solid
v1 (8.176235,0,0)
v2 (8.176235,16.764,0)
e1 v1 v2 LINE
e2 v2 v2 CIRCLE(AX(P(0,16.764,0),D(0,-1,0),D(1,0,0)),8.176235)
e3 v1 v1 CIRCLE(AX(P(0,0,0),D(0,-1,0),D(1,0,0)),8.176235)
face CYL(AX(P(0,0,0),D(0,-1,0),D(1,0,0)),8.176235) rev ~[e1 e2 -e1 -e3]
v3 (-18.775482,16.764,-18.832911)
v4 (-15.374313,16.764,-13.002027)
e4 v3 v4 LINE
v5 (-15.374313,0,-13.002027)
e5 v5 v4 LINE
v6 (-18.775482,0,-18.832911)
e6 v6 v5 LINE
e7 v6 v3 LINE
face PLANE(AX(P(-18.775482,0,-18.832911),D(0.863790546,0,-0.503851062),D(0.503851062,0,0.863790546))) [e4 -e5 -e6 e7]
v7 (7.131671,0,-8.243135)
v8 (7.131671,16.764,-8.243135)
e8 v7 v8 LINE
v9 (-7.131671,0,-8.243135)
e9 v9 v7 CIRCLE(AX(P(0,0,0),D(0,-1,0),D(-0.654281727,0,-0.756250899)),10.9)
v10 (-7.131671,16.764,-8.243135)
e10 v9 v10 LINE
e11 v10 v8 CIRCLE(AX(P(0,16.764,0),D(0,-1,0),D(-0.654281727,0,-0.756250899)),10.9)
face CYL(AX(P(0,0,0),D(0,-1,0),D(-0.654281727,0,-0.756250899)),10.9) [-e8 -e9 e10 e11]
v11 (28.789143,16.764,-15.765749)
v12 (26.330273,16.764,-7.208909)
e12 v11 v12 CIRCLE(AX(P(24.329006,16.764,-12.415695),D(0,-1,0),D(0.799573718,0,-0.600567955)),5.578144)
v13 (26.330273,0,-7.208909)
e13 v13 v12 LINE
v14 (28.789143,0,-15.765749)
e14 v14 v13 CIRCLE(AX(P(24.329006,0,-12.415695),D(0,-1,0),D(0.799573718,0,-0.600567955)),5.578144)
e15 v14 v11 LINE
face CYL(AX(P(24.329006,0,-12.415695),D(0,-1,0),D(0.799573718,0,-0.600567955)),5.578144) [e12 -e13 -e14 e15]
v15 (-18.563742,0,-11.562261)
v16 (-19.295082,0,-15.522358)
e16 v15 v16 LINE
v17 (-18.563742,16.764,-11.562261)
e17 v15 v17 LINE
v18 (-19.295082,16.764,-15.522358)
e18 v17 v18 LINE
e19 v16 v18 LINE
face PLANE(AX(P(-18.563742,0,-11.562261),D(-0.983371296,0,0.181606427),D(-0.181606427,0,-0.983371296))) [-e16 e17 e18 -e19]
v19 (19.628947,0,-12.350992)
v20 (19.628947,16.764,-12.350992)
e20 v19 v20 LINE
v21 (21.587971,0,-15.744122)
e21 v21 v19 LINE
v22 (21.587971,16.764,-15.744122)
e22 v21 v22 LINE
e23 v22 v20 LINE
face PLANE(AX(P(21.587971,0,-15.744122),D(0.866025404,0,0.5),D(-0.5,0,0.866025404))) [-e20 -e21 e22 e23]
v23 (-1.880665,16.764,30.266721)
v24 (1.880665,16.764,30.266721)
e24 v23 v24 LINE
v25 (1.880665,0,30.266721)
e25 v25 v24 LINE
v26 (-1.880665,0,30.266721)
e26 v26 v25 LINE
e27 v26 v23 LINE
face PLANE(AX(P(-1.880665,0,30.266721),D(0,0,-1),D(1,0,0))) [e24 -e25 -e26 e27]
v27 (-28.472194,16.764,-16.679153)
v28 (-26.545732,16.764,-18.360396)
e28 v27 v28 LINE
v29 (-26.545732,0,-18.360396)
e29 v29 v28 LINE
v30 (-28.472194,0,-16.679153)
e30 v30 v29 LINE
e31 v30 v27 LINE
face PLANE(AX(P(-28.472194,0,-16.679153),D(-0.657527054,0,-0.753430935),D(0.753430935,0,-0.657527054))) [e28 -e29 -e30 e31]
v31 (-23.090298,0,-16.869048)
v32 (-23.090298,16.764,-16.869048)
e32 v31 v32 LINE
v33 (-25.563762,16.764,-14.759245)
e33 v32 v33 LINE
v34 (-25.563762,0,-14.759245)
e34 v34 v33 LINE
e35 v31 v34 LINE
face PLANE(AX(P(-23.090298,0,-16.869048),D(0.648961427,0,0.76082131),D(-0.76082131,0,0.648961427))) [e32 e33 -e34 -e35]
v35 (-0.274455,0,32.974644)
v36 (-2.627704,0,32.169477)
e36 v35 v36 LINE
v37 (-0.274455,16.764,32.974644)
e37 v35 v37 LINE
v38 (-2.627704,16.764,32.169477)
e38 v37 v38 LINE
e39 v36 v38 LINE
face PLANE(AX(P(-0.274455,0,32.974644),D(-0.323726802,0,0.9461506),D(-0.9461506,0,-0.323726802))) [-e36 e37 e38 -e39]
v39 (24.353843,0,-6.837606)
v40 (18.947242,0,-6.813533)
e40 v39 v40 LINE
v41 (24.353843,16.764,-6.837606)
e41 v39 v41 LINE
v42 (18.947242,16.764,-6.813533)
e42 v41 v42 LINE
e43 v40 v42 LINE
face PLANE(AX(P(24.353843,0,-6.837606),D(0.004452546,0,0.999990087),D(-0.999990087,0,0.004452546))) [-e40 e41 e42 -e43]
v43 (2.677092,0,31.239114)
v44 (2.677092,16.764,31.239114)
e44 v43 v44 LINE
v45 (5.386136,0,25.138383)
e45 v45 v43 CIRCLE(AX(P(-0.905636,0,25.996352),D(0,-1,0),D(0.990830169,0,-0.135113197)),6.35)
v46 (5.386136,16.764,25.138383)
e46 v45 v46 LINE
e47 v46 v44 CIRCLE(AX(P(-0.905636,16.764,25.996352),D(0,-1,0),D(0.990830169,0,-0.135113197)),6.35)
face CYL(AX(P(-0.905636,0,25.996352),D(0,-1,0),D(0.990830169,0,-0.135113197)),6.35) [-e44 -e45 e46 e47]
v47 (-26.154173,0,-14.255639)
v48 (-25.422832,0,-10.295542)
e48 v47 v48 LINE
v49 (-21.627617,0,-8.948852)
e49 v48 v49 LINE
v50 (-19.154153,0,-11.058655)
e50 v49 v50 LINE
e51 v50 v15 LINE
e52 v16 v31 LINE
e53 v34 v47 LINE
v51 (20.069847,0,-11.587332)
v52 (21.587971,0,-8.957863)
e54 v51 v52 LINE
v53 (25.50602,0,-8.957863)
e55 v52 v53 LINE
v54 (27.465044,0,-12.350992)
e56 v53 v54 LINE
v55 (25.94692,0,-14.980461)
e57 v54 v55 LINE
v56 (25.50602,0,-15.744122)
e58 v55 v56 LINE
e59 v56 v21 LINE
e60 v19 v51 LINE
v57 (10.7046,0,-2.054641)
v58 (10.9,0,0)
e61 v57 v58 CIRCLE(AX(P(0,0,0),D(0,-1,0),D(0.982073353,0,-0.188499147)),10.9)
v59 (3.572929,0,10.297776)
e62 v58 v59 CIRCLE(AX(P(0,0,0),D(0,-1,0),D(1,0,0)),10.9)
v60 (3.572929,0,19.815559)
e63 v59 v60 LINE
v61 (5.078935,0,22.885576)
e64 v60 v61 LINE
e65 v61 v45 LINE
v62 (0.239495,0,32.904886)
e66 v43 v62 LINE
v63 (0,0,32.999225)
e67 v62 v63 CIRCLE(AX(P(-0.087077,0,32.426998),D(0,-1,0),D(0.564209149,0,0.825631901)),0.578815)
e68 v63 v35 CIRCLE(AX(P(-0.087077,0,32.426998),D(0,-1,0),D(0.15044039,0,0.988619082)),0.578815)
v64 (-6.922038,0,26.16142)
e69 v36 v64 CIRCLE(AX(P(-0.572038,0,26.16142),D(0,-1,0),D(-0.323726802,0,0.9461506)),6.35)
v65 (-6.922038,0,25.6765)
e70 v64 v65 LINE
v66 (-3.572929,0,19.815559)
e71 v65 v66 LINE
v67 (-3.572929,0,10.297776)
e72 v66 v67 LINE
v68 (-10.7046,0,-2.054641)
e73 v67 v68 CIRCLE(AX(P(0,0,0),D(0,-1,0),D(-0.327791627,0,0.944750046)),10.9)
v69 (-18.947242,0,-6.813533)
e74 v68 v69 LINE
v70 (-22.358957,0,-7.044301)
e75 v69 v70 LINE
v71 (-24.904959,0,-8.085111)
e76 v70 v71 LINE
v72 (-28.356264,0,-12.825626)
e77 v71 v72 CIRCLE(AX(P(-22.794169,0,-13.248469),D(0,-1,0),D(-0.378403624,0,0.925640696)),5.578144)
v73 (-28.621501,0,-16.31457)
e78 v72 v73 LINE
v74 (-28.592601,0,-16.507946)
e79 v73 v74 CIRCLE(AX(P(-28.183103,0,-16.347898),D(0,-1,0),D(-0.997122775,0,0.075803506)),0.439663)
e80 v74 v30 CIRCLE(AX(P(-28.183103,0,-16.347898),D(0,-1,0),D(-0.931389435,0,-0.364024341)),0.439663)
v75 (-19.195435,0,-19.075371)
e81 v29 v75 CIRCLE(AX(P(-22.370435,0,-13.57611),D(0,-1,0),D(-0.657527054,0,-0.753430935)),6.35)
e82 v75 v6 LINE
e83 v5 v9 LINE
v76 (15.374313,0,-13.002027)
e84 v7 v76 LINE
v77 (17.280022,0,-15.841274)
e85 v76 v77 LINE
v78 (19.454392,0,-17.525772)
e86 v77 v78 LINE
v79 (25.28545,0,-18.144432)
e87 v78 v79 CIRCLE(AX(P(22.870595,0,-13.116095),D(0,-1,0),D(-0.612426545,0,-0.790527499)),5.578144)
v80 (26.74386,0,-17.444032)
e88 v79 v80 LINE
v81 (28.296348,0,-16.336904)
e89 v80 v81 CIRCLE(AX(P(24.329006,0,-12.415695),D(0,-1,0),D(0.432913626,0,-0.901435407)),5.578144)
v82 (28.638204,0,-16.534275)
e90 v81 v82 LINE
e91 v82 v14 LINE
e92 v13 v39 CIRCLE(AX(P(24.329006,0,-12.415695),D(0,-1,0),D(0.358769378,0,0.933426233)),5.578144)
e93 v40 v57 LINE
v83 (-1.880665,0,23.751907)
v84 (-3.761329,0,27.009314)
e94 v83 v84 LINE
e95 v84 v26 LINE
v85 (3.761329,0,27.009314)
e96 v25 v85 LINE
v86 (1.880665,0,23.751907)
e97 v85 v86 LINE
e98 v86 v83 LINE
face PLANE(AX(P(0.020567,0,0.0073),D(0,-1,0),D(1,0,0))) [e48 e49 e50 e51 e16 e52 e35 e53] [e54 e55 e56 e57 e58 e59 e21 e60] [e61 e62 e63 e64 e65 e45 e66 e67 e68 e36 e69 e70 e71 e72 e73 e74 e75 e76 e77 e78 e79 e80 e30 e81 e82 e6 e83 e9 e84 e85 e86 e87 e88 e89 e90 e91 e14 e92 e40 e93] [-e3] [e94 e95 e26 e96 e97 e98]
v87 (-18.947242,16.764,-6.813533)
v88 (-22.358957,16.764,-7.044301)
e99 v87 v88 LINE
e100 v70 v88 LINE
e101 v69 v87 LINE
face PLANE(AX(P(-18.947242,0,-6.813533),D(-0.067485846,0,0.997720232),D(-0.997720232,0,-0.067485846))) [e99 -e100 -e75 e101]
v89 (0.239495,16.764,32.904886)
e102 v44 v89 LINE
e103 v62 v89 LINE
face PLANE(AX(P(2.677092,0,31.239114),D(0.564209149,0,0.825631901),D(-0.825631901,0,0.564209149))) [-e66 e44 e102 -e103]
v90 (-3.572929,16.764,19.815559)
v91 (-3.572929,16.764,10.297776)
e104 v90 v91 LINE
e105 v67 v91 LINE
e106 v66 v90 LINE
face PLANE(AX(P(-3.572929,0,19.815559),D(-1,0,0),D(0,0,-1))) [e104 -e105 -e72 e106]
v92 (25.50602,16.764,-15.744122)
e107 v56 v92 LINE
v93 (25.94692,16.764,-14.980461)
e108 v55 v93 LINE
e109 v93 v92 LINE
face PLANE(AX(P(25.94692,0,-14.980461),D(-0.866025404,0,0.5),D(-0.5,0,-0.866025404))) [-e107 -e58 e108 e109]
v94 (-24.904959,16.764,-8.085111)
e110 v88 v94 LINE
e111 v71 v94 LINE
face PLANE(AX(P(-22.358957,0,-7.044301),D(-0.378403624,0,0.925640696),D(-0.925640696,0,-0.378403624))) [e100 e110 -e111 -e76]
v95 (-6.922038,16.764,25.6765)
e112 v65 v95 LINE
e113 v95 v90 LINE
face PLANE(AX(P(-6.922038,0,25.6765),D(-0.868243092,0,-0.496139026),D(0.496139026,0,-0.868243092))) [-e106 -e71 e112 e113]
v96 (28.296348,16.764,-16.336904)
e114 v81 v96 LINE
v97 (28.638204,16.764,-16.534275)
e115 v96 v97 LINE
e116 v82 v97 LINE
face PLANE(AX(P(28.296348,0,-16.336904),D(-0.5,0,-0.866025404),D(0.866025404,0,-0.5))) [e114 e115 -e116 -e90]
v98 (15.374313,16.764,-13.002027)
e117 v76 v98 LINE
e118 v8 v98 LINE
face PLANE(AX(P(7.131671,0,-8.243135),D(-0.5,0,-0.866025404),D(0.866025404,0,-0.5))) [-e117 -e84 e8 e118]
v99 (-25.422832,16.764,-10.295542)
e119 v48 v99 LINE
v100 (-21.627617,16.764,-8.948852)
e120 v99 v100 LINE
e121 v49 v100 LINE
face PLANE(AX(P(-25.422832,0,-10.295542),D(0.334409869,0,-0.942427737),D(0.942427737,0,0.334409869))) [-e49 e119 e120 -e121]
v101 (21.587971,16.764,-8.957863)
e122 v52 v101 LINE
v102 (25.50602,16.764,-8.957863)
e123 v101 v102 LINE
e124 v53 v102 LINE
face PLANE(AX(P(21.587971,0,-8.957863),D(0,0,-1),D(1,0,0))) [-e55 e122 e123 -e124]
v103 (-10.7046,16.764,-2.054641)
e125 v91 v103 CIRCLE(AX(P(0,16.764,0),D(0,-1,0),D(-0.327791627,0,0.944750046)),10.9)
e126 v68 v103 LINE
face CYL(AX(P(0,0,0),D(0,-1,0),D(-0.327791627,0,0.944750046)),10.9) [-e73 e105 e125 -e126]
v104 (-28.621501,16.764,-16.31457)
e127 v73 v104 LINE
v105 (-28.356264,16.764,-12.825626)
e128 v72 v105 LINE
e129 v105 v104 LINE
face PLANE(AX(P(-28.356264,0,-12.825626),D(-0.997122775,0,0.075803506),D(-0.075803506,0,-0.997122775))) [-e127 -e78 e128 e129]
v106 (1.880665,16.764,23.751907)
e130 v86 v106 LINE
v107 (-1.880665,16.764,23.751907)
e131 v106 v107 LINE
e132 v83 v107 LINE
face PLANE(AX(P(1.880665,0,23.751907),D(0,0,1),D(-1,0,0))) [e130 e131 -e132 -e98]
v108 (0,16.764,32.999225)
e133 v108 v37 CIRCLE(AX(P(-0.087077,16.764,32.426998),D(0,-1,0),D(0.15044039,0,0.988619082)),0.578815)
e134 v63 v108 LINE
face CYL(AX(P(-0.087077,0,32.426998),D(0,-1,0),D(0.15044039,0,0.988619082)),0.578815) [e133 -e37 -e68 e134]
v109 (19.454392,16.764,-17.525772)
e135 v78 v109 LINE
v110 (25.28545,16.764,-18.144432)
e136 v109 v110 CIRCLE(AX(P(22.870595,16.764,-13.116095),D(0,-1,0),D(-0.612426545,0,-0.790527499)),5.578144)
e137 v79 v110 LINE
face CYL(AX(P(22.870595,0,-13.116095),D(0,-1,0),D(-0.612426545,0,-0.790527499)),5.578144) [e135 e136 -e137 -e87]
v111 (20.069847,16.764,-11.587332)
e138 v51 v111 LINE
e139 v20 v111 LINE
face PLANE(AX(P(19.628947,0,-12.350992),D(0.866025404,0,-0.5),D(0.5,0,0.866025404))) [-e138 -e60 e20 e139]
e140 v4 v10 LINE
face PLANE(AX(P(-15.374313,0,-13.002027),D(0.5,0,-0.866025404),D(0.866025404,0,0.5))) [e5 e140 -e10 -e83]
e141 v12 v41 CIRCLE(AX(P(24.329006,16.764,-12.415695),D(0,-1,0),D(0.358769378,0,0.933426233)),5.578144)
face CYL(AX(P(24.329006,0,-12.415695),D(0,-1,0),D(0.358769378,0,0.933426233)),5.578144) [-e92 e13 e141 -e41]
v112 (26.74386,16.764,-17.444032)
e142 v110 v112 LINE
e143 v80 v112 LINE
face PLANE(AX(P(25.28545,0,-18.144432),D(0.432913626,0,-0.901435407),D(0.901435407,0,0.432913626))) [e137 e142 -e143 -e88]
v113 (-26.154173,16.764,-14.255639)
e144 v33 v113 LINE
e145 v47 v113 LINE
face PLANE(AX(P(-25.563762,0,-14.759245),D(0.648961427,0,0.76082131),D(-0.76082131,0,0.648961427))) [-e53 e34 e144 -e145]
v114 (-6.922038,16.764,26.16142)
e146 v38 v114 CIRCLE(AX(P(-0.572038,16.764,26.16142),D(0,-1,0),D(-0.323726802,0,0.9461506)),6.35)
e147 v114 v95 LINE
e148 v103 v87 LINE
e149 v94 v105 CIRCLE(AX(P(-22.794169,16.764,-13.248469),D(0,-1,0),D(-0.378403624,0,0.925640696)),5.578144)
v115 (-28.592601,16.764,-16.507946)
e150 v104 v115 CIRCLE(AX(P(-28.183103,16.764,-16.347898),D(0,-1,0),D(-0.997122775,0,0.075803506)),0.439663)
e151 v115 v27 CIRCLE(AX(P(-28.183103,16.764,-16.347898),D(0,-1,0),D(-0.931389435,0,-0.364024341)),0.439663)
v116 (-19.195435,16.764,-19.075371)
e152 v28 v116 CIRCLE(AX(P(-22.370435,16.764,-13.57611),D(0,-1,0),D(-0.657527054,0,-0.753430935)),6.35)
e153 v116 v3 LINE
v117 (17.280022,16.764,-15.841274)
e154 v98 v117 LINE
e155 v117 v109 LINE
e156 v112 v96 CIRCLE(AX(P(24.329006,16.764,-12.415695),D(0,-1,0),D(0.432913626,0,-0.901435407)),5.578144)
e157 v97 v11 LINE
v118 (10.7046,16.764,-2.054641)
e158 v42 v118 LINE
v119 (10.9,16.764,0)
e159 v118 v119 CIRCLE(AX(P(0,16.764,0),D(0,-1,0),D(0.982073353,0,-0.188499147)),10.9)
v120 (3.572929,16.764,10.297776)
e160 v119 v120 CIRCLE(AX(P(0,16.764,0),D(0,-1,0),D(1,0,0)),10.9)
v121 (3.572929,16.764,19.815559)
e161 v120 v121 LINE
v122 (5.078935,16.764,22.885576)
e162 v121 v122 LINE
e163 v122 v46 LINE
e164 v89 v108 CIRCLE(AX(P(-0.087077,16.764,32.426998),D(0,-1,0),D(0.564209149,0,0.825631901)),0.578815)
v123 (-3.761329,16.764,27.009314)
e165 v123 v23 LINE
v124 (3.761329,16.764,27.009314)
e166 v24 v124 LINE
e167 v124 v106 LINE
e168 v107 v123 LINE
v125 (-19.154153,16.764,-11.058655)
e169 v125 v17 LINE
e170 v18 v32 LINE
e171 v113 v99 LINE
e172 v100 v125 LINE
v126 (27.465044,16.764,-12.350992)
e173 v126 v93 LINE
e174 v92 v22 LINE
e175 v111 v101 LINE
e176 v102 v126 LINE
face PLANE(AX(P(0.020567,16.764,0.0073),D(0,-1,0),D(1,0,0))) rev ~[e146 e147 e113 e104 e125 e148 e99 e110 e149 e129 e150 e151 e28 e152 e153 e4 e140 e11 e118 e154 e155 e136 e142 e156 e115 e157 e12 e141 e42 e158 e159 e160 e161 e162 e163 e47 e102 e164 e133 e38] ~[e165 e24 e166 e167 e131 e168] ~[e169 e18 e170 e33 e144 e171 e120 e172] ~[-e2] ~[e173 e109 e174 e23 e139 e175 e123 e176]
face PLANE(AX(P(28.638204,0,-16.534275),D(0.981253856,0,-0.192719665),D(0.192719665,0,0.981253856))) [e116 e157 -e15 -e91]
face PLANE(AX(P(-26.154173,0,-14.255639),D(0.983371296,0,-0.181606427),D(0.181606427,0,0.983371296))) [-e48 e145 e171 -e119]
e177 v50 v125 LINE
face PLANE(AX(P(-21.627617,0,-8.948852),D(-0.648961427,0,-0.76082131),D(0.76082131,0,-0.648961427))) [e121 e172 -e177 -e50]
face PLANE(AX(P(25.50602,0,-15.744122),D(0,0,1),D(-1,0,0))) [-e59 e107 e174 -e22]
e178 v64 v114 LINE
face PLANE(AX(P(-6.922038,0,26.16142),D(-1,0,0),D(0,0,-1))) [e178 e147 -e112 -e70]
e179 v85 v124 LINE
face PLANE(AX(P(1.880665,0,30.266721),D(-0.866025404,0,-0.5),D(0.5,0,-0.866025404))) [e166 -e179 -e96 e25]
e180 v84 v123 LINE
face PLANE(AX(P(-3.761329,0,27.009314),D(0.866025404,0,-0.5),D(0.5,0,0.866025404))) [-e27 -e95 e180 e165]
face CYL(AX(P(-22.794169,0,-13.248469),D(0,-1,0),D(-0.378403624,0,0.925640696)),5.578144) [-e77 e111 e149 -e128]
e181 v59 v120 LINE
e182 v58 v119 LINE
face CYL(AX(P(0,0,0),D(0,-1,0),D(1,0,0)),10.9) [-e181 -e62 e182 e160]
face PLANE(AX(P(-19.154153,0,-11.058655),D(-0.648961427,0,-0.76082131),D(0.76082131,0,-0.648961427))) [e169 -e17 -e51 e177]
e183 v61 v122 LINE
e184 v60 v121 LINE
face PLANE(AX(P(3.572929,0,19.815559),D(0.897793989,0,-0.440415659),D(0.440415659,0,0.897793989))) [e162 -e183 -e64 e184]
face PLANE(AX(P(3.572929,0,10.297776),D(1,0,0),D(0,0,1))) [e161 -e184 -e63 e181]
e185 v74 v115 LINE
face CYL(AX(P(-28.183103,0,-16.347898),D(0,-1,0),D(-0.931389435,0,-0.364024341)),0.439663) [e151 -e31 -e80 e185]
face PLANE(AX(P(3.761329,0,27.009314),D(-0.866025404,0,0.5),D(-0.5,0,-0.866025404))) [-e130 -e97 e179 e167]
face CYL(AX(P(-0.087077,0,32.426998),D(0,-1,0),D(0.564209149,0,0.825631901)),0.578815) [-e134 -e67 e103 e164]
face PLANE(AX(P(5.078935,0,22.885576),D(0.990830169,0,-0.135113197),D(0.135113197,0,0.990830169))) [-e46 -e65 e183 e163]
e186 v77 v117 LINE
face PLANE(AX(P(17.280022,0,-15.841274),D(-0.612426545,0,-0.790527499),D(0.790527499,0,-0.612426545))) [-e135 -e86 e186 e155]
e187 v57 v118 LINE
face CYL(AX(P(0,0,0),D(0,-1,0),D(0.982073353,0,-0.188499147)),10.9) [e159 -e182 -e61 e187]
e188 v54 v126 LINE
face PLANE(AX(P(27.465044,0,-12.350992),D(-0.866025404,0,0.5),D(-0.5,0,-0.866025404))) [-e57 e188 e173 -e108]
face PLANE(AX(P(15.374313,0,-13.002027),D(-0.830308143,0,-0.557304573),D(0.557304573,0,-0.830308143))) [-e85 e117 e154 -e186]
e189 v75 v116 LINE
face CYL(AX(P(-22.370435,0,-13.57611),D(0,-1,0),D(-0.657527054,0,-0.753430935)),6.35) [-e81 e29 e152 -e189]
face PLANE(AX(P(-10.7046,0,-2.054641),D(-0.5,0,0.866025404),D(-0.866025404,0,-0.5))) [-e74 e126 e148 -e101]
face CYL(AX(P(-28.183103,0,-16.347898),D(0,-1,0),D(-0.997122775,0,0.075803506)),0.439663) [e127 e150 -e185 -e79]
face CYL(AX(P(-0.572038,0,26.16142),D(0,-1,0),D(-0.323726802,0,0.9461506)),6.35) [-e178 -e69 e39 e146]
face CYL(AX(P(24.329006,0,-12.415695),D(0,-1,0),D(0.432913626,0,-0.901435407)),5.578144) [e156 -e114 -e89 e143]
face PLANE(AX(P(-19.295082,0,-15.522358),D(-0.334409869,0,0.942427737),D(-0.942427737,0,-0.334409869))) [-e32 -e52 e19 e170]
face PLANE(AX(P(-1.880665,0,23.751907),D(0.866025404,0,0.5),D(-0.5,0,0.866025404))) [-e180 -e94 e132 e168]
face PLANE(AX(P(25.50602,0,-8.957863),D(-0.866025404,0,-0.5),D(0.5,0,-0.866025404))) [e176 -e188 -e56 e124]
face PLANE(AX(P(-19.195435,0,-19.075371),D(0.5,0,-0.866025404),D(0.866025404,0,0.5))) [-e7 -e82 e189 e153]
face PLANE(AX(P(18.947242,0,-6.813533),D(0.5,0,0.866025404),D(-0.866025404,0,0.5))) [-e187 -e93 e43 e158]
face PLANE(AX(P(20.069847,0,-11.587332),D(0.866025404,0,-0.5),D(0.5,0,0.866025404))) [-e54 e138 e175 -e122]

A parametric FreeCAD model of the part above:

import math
import FreeCAD as App
import Part
import Sketcher

V = App.Vector
Q = App.Units.Quantity

doc = App.newDocument("Part")
params = doc.addObject("Spreadsheet::Sheet", "Params")
for row, (alias, value) in enumerate([
    ("sketch1_radius", "0.25 in"),
    ("sketch1_radius2", "0.25 in"),
    ("sketch1_radius3", "0.25 in"),
    ("pad1_length", "0.66 in"),
], start=1):
    params.set(f"A{row}", alias)
    params.set(f"B{row}", "=" + value)
    params.setAlias(f"B{row}", alias)

body = doc.addObject("PartDesign::Body", "Body")

sketch1 = body.newObject("Sketcher::SketchObject", "Sketch")
sketch1.AttachmentSupport = (doc.getObject("XZ_Plane"), [""])
sketch1.MapMode = "FlatFace"
sketch1.addGeometry(Part.ArcOfCircle(Part.Circle(V(0, 0, 0), V(0, 0, 1), 10.9), math.radians(-10.865209), math.radians(0)), False)
sketch1.addGeometry(Part.ArcOfCircle(Part.Circle(V(0, 0, 0), V(0, 0, 1), 10.9), math.radians(0), math.radians(70.865209)), False)
sketch1.addGeometry(Part.LineSegment(V(3.572929, 10.297776, 0), V(3.572929, 19.815559, 0)), False)
sketch1.addGeometry(Part.LineSegment(V(3.572929, 19.815559, 0), V(5.078935, 22.885576, 0)), False)
sketch1.addGeometry(Part.LineSegment(V(5.078935, 22.885576, 0), V(5.386136, 25.138383, 0)), False)
sketch1.addGeometry(Part.ArcOfCircle(Part.Circle(V(-0.905636, 25.996352, 0), V(0, 0, 1), 6.35), math.radians(-7.765166), math.radians(55.652609)), False)
sketch1.addGeometry(Part.LineSegment(V(2.677092, 31.239114, 0), V(0.239495, 32.904886, 0)), False)
sketch1.addGeometry(Part.ArcOfCircle(Part.Circle(V(-0.087077, 32.426998, 0), V(0, 0, 1), 0.578815), math.radians(55.652609), math.radians(81.347551)), False)
sketch1.addGeometry(Part.ArcOfCircle(Part.Circle(V(-0.087077, 32.426998, 0), V(0, 0, 1), 0.578815), math.radians(81.347551), math.radians(108.888457)), False)
sketch1.addGeometry(Part.LineSegment(V(-0.274455, 32.974644, 0), V(-2.627704, 32.169477, 0)), False)
sketch1.addGeometry(Part.ArcOfCircle(Part.Circle(V(-0.572038, 26.16142, 0), V(0, 0, 1), 6.35), math.radians(108.888457), math.radians(180)), False)
sketch1.addGeometry(Part.LineSegment(V(-6.922038, 26.16142, 0), V(-6.922038, 25.6765, 0)), False)
sketch1.addGeometry(Part.LineSegment(V(-6.922038, 25.6765, 0), V(-3.572929, 19.815559, 0)), False)
sketch1.addGeometry(Part.LineSegment(V(-3.572929, 19.815559, 0), V(-3.572929, 10.297776, 0)), False)
sketch1.addGeometry(Part.ArcOfCircle(Part.Circle(V(0, 0, 0), V(0, 0, 1), 10.9), math.radians(109.134791), math.radians(190.865209)), False)
sketch1.addGeometry(Part.LineSegment(V(-10.7046, -2.054641, 0), V(-18.947242, -6.813533, 0)), False)
sketch1.addGeometry(Part.LineSegment(V(-18.947242, -6.813533, 0), V(-22.358957, -7.044301, 0)), False)
sketch1.addGeometry(Part.LineSegment(V(-22.358957, -7.044301, 0), V(-24.904959, -8.085111, 0)), False)
sketch1.addGeometry(Part.ArcOfCircle(Part.Circle(V(-22.794169, -13.248469, 0), V(0, 0, 1), 5.578144), math.radians(112.234834), math.radians(175.652609)), False)
sketch1.addGeometry(Part.LineSegment(V(-28.356264, -12.825626, 0), V(-28.621501, -16.31457, 0)), False)
sketch1.addGeometry(Part.ArcOfCircle(Part.Circle(V(-28.183103, -16.347898, 0), V(0, 0, 1), 0.439663), math.radians(175.652609), math.radians(201.347551)), False)
sketch1.addGeometry(Part.ArcOfCircle(Part.Circle(V(-28.183103, -16.347898, 0), V(0, 0, 1), 0.439663), math.radians(-158.652449), math.radians(-131.111543)), False)
sketch1.addGeometry(Part.LineSegment(V(-28.472194, -16.679153, 0), V(-26.545732, -18.360396, 0)), False)
sketch1.addGeometry(Part.ArcOfCircle(Part.Circle(V(-22.370435, -13.57611, 0), V(0, 0, 1), 6.35), math.radians(-131.111543), math.radians(-60)), False)
sketch1.addGeometry(Part.LineSegment(V(-19.195435, -19.075371, 0), V(-18.775482, -18.832911, 0)), False)
sketch1.addGeometry(Part.LineSegment(V(-18.775482, -18.832911, 0), V(-15.374313, -13.002027, 0)), False)
sketch1.addGeometry(Part.LineSegment(V(-15.374313, -13.002027, 0), V(-7.131671, -8.243135, 0)), False)
sketch1.addGeometry(Part.ArcOfCircle(Part.Circle(V(0, 0, 0), V(0, 0, 1), 10.9), math.radians(-130.865209), math.radians(-49.134791)), False)
sketch1.addGeometry(Part.LineSegment(V(7.131671, -8.243135, 0), V(15.374313, -13.002027, 0)), False)
sketch1.addGeometry(Part.LineSegment(V(15.374313, -13.002027, 0), V(17.280022, -15.841274, 0)), False)
sketch1.addGeometry(Part.LineSegment(V(17.280022, -15.841274, 0), V(19.454392, -17.525772, 0)), False)
sketch1.addGeometry(Part.ArcOfCircle(Part.Circle(V(22.870595, -13.116095, 0), V(0, 0, 1), 5.578144), math.radians(-127.765166), math.radians(-64.347391)), False)
sketch1.addGeometry(Part.LineSegment(V(25.28545, -18.144432, 0), V(26.74386, -17.444032, 0)), False)
sketch1.addGeometry(Part.ArcOfCircle(Part.Circle(V(24.329006, -12.415695, 0), V(0, 0, 1), 5.578144), math.radians(-64.347391), math.radians(-44.664931)), False)
sketch1.addGeometry(Part.LineSegment(V(28.296348, -16.336904, 0), V(28.638204, -16.534275, 0)), False)
sketch1.addGeometry(Part.LineSegment(V(28.638204, -16.534275, 0), V(28.789143, -15.765749, 0)), False)
sketch1.addGeometry(Part.ArcOfCircle(Part.Circle(V(24.329006, -12.415695, 0), V(0, 0, 1), 5.578144), math.radians(-36.910585), math.radians(68.975361)), False)
sketch1.addGeometry(Part.ArcOfCircle(Part.Circle(V(24.329006, -12.415695, 0), V(0, 0, 1), 5.578144), math.radians(68.975361), math.radians(89.744887)), False)
sketch1.addGeometry(Part.LineSegment(V(24.353843, -6.837606, 0), V(18.947242, -6.813533, 0)), False)
sketch1.addGeometry(Part.LineSegment(V(18.947242, -6.813533, 0), V(10.7046, -2.054641, 0)), False)
sketch1.addGeometry(Part.LineSegment(V(-21.627617, -8.948852, 0), V(-19.154153, -11.058655, 0)), False)
sketch1.addGeometry(Part.LineSegment(V(-19.154153, -11.058655, 0), V(-18.563742, -11.562261, 0)), False)
sketch1.addGeometry(Part.LineSegment(V(-18.563742, -11.562261, 0), V(-19.295082, -15.522358, 0)), False)
sketch1.addGeometry(Part.LineSegment(V(-19.295082, -15.522358, 0), V(-23.090298, -16.869048, 0)), False)
sketch1.addGeometry(Part.LineSegment(V(-23.090298, -16.869048, 0), V(-25.563762, -14.759245, 0)), False)
sketch1.addGeometry(Part.LineSegment(V(-25.563762, -14.759245, 0), V(-26.154173, -14.255639, 0)), False)
sketch1.addGeometry(Part.LineSegment(V(-26.154173, -14.255639, 0), V(-25.422832, -10.295542, 0)), False)
sketch1.addGeometry(Part.LineSegment(V(-25.422832, -10.295542, 0), V(-21.627617, -8.948852, 0)), False)
sketch1.addGeometry(Part.Circle(V(0, 0, 0), V(0, 0, 1), 8.176235), False)
sketch1.addGeometry(Part.LineSegment(V(27.465044, -12.350992, 0), V(25.94692, -14.980461, 0)), False)
sketch1.addGeometry(Part.LineSegment(V(25.94692, -14.980461, 0), V(25.50602, -15.744122, 0)), False)
sketch1.addGeometry(Part.LineSegment(V(25.50602, -15.744122, 0), V(21.587971, -15.744122, 0)), False)
sketch1.addGeometry(Part.LineSegment(V(21.587971, -15.744122, 0), V(19.628947, -12.350992, 0)), False)
sketch1.addGeometry(Part.LineSegment(V(19.628947, -12.350992, 0), V(20.069847, -11.587332, 0)), False)
sketch1.addGeometry(Part.LineSegment(V(20.069847, -11.587332, 0), V(21.587971, -8.957863, 0)), False)
sketch1.addGeometry(Part.LineSegment(V(21.587971, -8.957863, 0), V(25.50602, -8.957863, 0)), False)
sketch1.addGeometry(Part.LineSegment(V(25.50602, -8.957863, 0), V(27.465044, -12.350992, 0)), False)
sketch1.addGeometry(Part.LineSegment(V(-3.761329, 27.009314, 0), V(-1.880665, 30.266721, 0)), False)
sketch1.addGeometry(Part.LineSegment(V(-1.880665, 30.266721, 0), V(1.880665, 30.266721, 0)), False)
sketch1.addGeometry(Part.LineSegment(V(1.880665, 30.266721, 0), V(3.761329, 27.009314, 0)), False)
sketch1.addGeometry(Part.LineSegment(V(3.761329, 27.009314, 0), V(1.880665, 23.751907, 0)), False)
sketch1.addGeometry(Part.LineSegment(V(1.880665, 23.751907, 0), V(-1.880665, 23.751907, 0)), False)
sketch1.addGeometry(Part.LineSegment(V(-1.880665, 23.751907, 0), V(-3.761329, 27.009314, 0)), False)
sketch1.addConstraint(Sketcher.Constraint("Coincident", 0, 2, 1, 1))
sketch1.addConstraint(Sketcher.Constraint("Coincident", 1, 2, 2, 1))
sketch1.addConstraint(Sketcher.Constraint("Coincident", 2, 2, 3, 1))
sketch1.addConstraint(Sketcher.Constraint("Coincident", 3, 2, 4, 1))
sketch1.addConstraint(Sketcher.Constraint("Coincident", 4, 2, 5, 1))
sketch1.addConstraint(Sketcher.Constraint("Coincident", 5, 2, 6, 1))
sketch1.addConstraint(Sketcher.Constraint("Coincident", 6, 2, 7, 1))
sketch1.addConstraint(Sketcher.Constraint("Coincident", 7, 2, 8, 1))
sketch1.addConstraint(Sketcher.Constraint("Coincident", 8, 2, 9, 1))
sketch1.addConstraint(Sketcher.Constraint("Coincident", 9, 2, 10, 1))
sketch1.addConstraint(Sketcher.Constraint("Coincident", 10, 2, 11, 1))
sketch1.addConstraint(Sketcher.Constraint("Coincident", 11, 2, 12, 1))
sketch1.addConstraint(Sketcher.Constraint("Coincident", 12, 2, 13, 1))
sketch1.addConstraint(Sketcher.Constraint("Coincident", 13, 2, 14, 1))
sketch1.addConstraint(Sketcher.Constraint("Coincident", 14, 2, 15, 1))
sketch1.addConstraint(Sketcher.Constraint("Coincident", 15, 2, 16, 1))
sketch1.addConstraint(Sketcher.Constraint("Coincident", 16, 2, 17, 1))
sketch1.addConstraint(Sketcher.Constraint("Coincident", 17, 2, 18, 1))
sketch1.addConstraint(Sketcher.Constraint("Coincident", 18, 2, 19, 1))
sketch1.addConstraint(Sketcher.Constraint("Coincident", 19, 2, 20, 1))
sketch1.addConstraint(Sketcher.Constraint("Coincident", 20, 2, 21, 1))
sketch1.addConstraint(Sketcher.Constraint("Coincident", 21, 2, 22, 1))
sketch1.addConstraint(Sketcher.Constraint("Coincident", 22, 2, 23, 1))
sketch1.addConstraint(Sketcher.Constraint("Coincident", 23, 2, 24, 1))
sketch1.addConstraint(Sketcher.Constraint("Coincident", 24, 2, 25, 1))
sketch1.addConstraint(Sketcher.Constraint("Coincident", 25, 2, 26, 1))
sketch1.addConstraint(Sketcher.Constraint("Coincident", 26, 2, 27, 1))
sketch1.addConstraint(Sketcher.Constraint("Coincident", 27, 2, 28, 1))
sketch1.addConstraint(Sketcher.Constraint("Coincident", 28, 2, 29, 1))
sketch1.addConstraint(Sketcher.Constraint("Coincident", 29, 2, 30, 1))
sketch1.addConstraint(Sketcher.Constraint("Coincident", 30, 2, 31, 1))
sketch1.addConstraint(Sketcher.Constraint("Coincident", 31, 2, 32, 1))
sketch1.addConstraint(Sketcher.Constraint("Coincident", 32, 2, 33, 1))
sketch1.addConstraint(Sketcher.Constraint("Coincident", 33, 2, 34, 1))
sketch1.addConstraint(Sketcher.Constraint("Coincident", 34, 2, 35, 1))
sketch1.addConstraint(Sketcher.Constraint("Coincident", 35, 2, 36, 1))
sketch1.addConstraint(Sketcher.Constraint("Coincident", 36, 2, 37, 1))
sketch1.addConstraint(Sketcher.Constraint("Coincident", 37, 2, 38, 1))
sketch1.addConstraint(Sketcher.Constraint("Coincident", 38, 2, 39, 1))
sketch1.addConstraint(Sketcher.Constraint("Coincident", 39, 2, 0, 1))
sketch1.addConstraint(Sketcher.Constraint("Coincident", 40, 2, 41, 1))
sketch1.addConstraint(Sketcher.Constraint("Coincident", 41, 2, 42, 1))
sketch1.addConstraint(Sketcher.Constraint("Coincident", 42, 2, 43, 1))
sketch1.addConstraint(Sketcher.Constraint("Coincident", 43, 2, 44, 1))
sketch1.addConstraint(Sketcher.Constraint("Coincident", 44, 2, 45, 1))
sketch1.addConstraint(Sketcher.Constraint("Coincident", 45, 2, 46, 1))
sketch1.addConstraint(Sketcher.Constraint("Coincident", 46, 2, 47, 1))
sketch1.addConstraint(Sketcher.Constraint("Coincident", 47, 2, 40, 1))
sketch1.addConstraint(Sketcher.Constraint("Coincident", 49, 2, 50, 1))
sketch1.addConstraint(Sketcher.Constraint("Coincident", 50, 2, 51, 1))
sketch1.addConstraint(Sketcher.Constraint("Coincident", 51, 2, 52, 1))
sketch1.addConstraint(Sketcher.Constraint("Coincident", 52, 2, 53, 1))
sketch1.addConstraint(Sketcher.Constraint("Coincident", 53, 2, 54, 1))
sketch1.addConstraint(Sketcher.Constraint("Coincident", 54, 2, 55, 1))
sketch1.addConstraint(Sketcher.Constraint("Coincident", 55, 2, 56, 1))
sketch1.addConstraint(Sketcher.Constraint("Coincident", 56, 2, 49, 1))
sketch1.addConstraint(Sketcher.Constraint("Coincident", 57, 2, 58, 1))
sketch1.addConstraint(Sketcher.Constraint("Coincident", 58, 2, 59, 1))
sketch1.addConstraint(Sketcher.Constraint("Coincident", 59, 2, 60, 1))
sketch1.addConstraint(Sketcher.Constraint("Coincident", 60, 2, 61, 1))
sketch1.addConstraint(Sketcher.Constraint("Coincident", 61, 2, 62, 1))
sketch1.addConstraint(Sketcher.Constraint("Coincident", 62, 2, 57, 1))
sketch1.addConstraint(Sketcher.Constraint("Vertical", 2))
sketch1.addConstraint(Sketcher.Constraint("Vertical", 11))
sketch1.addConstraint(Sketcher.Constraint("Vertical", 13))
sketch1.addConstraint(Sketcher.Constraint("Horizontal", 51))
sketch1.addConstraint(Sketcher.Constraint("Horizontal", 55))
sketch1.addConstraint(Sketcher.Constraint("Horizontal", 58))
sketch1.addConstraint(Sketcher.Constraint("Horizontal", 61))
sketch1.addConstraint(Sketcher.Constraint("Coincident", 0, 3, -1, 1))
sketch1.addConstraint(Sketcher.Constraint("Coincident", 1, 3, -1, 1))
sketch1.addConstraint(Sketcher.Constraint("Coincident", 14, 3, -1, 1))
sketch1.addConstraint(Sketcher.Constraint("Coincident", 27, 3, -1, 1))
sketch1.addConstraint(Sketcher.Constraint("Coincident", 48, 3, -1, 1))
sketch1.addConstraint(Sketcher.Constraint("Coincident", 8, 3, 7, 3))
sketch1.addConstraint(Sketcher.Constraint("Coincident", 21, 3, 20, 3))
sketch1.addConstraint(Sketcher.Constraint("Coincident", 36, 3, 33, 3))
sketch1.addConstraint(Sketcher.Constraint("Coincident", 37, 3, 33, 3))
sketch1.addConstraint(Sketcher.Constraint("PointOnObject", 0, 2, -1))
sketch1.addConstraint(Sketcher.Constraint("PointOnObject", 7, 2, -2))
sketch1.addConstraint(Sketcher.Constraint("Radius", 5, Q("0.25 in")))
sketch1.addConstraint(Sketcher.Constraint("Radius", 10, Q("0.25 in")))
sketch1.addConstraint(Sketcher.Constraint("Radius", 23, Q("0.25 in")))
sketch1.addConstraint(Sketcher.Constraint("Radius", 0, Q("10.9 mm")))
sketch1.addConstraint(Sketcher.Constraint("Radius", 14, Q("10.9 mm")))
sketch1.addConstraint(Sketcher.Constraint("Radius", 27, Q("10.9 mm")))
sketch1.addConstraint(Sketcher.Constraint("Diameter", 48, Q("16.35247 mm")))
sketch1.addConstraint(Sketcher.Constraint("DistanceY", -1, 1, 4, 2, Q("0.9897001 in")))
sketch1.addConstraint(Sketcher.Constraint("Radius", 7, Q("0.578815 mm")))
sketch1.addConstraint(Sketcher.Constraint("Radius", 18, Q("5.578144 mm")))
sketch1.addConstraint(Sketcher.Constraint("Radius", 20, Q("0.439663 mm")))
sketch1.addConstraint(Sketcher.Constraint("Radius", 31, Q("5.578144 mm")))
sketch1.addConstraint(Sketcher.Constraint("Radius", 33, Q("5.578144 mm")))
sketch1.addConstraint(Sketcher.Constraint("Radius", 36, Q("5.578144 mm")))
sketch1.addConstraint(Sketcher.Constraint("Distance", 6, Q("2.952402 mm")))
sketch1.addConstraint(Sketcher.Constraint("Distance", 50, Q("0.881799 mm")))
sketch1.addConstraint(Sketcher.Constraint("Distance", 53, Q("0.881799 mm")))
sketch1.addConstraint(Sketcher.Constraint("DistanceX", 51, 2, 51, 1, Q("3.918048 mm")))
sketch1.addConstraint(Sketcher.Constraint("DistanceX", 55, 1, 55, 2, Q("3.918048 mm")))
sketch1.addConstraint(Sketcher.Constraint("DistanceX", 58, 1, 58, 2, Q("3.761329 mm")))
sketch1.addConstraint(Sketcher.Constraint("DistanceX", 61, 2, 61, 1, Q("3.761329 mm")))
sketch1.addConstraint(Sketcher.Constraint("DistanceY", 11, 2, 11, 1, Q("0.484921 mm")))
sketch1.addConstraint(Sketcher.Constraint("DistanceY", -1, 1, 7, 3, Q("32.426998 mm")))
sketch1.addConstraint(Sketcher.Constraint("DistanceY", -1, 1, 11, 2, Q("25.6765 mm")))
sketch1.addConstraint(Sketcher.Constraint("DistanceX", 14, 2, -1, 1, Q("10.7046 mm")))
sketch1.addConstraint(Sketcher.Constraint("DistanceY", 16, 2, -1, 1, Q("7.044301 mm")))
sketch1.addConstraint(Sketcher.Constraint("DistanceX", 19, 2, -1, 1, Q("28.621501 mm")))
sketch1.addConstraint(Sketcher.Constraint("DistanceX", 20, 2, -1, 1, Q("28.592601 mm")))
sketch1.addConstraint(Sketcher.Constraint("DistanceX", -1, 1, 39, 2, Q("10.7046 mm")))
sketch1.addConstraint(Sketcher.Constraint("Distance", 3, Q("3.419511 mm")))
sketch1.addConstraint(Sketcher.Constraint("Distance", 16, Q("3.419511 mm")))
sketch1.addConstraint(Sketcher.Constraint("Distance", 17, Q("2.750529 mm")))
sketch1.addConstraint(Sketcher.Constraint("Distance", 19, Q("3.499011 mm")))
sketch1.addConstraint(Sketcher.Constraint("Distance", 22, Q("2.556918 mm")))
sketch1.addConstraint(Sketcher.Constraint("Distance", 24, Q("0.484921 mm")))
sketch1.addConstraint(Sketcher.Constraint("Distance", 29, Q("3.419511 mm")))
sketch1.addConstraint(Sketcher.Constraint("Distance", 30, Q("2.750529 mm")))
sketch1.addConstraint(Sketcher.Constraint("Distance", 34, Q("0.394741 mm")))
sketch1.addConstraint(Sketcher.Constraint("Distance", 49, Q("3.036249 mm")))
sketch1.addConstraint(Sketcher.Constraint("Distance", 52, Q("3.918048 mm")))
sketch1.addConstraint(Sketcher.Constraint("Distance", 54, Q("3.036249 mm")))
sketch1.addConstraint(Sketcher.Constraint("Distance", 56, Q("3.918048 mm")))
sketch1.addConstraint(Sketcher.Constraint("Distance", 57, Q("3.761329 mm")))
sketch1.addConstraint(Sketcher.Constraint("Distance", 59, Q("3.761329 mm")))
sketch1.addConstraint(Sketcher.Constraint("Distance", 60, Q("3.761329 mm")))
sketch1.addConstraint(Sketcher.Constraint("Distance", 62, Q("3.761329 mm")))
sketch1.addConstraint(Sketcher.Constraint("DistanceY", 2, 1, 2, 2, Q("9.517784 mm")))
sketch1.addConstraint(Sketcher.Constraint("DistanceY", 13, 2, 13, 1, Q("9.517784 mm")))
sketch1.addConstraint(Sketcher.Constraint("DistanceY", -1, 1, 5, 3, Q("25.996352 mm")))
sketch1.addConstraint(Sketcher.Constraint("DistanceX", 10, 3, -1, 1, Q("0.572038 mm")))
sketch1.addConstraint(Sketcher.Constraint("DistanceY", -1, 1, 10, 3, Q("26.16142 mm")))
sketch1.addConstraint(Sketcher.Constraint("DistanceX", 18, 3, -1, 1, Q("22.794169 mm")))
sketch1.addConstraint(Sketcher.Constraint("DistanceY", 18, 3, -1, 1, Q("13.248469 mm")))
sketch1.addConstraint(Sketcher.Constraint("DistanceY", 23, 3, -1, 1, Q("13.57611 mm")))
sketch1.addConstraint(Sketcher.Constraint("DistanceX", -1, 1, 1, 2, Q("3.572929 mm")))
sketch1.addConstraint(Sketcher.Constraint("DistanceX", 12, 2, -1, 1, Q("3.572929 mm")))
sketch1.addConstraint(Sketcher.Constraint("DistanceX", 17, 2, -1, 1, Q("24.904959 mm")))
sketch1.addConstraint(Sketcher.Constraint("DistanceY", 19, 2, -1, 1, Q("16.31457 mm")))
sketch1.addConstraint(Sketcher.Constraint("DistanceY", 23, 2, -1, 1, Q("19.075371 mm")))
sketch1.addConstraint(Sketcher.Constraint("DistanceX", 24, 2, -1, 1, Q("18.775482 mm")))
sketch1.addConstraint(Sketcher.Constraint("DistanceY", 24, 2, -1, 1, Q("18.832911 mm")))
sketch1.addConstraint(Sketcher.Constraint("DistanceX", 26, 2, -1, 1, Q("7.131671 mm")))
sketch1.addConstraint(Sketcher.Constraint("DistanceX", -1, 1, 27, 2, Q("7.131671 mm")))
sketch1.addConstraint(Sketcher.Constraint("DistanceX", -1, 1, 30, 2, Q("19.454392 mm")))
sketch1.addConstraint(Sketcher.Constraint("DistanceY", 30, 2, -1, 1, Q("17.525772 mm")))
sketch1.addConstraint(Sketcher.Constraint("DistanceX", -1, 1, 31, 2, Q("25.28545 mm")))
sketch1.addConstraint(Sketcher.Constraint("DistanceY", 31, 2, -1, 1, Q("18.144432 mm")))
sketch1.addConstraint(Sketcher.Constraint("DistanceX", -1, 1, 32, 2, Q("26.74386 mm")))
sketch1.addConstraint(Sketcher.Constraint("DistanceY", 32, 2, -1, 1, Q("17.444032 mm")))
sketch1.addConstraint(Sketcher.Constraint("DistanceX", -1, 1, 33, 2, Q("28.296348 mm")))
sketch1.addConstraint(Sketcher.Constraint("DistanceY", 35, 2, -1, 1, Q("15.765749 mm")))
sketch1.addConstraint(Sketcher.Constraint("DistanceY", 36, 2, -1, 1, Q("7.208909 mm")))
sketch1.addConstraint(Sketcher.Constraint("DistanceY", 41, 2, -1, 1, Q("11.562261 mm")))
sketch1.addConstraint(Sketcher.Constraint("DistanceY", 42, 2, -1, 1, Q("15.522358 mm")))
sketch1.addConstraint(Sketcher.Constraint("DistanceX", 44, 2, -1, 1, Q("25.563762 mm")))
sketch1.addConstraint(Sketcher.Constraint("DistanceY", 45, 2, -1, 1, Q("14.255639 mm")))
sketch1.addConstraint(Sketcher.Constraint("DistanceY", 46, 2, -1, 1, Q("10.295542 mm")))
sketch1.addConstraint(Sketcher.Constraint("DistanceX", -1, 1, 49, 2, Q("25.94692 mm")))
sketch1.addConstraint(Sketcher.Constraint("DistanceY", 49, 2, -1, 1, Q("14.980461 mm")))
sketch1.addConstraint(Sketcher.Constraint("DistanceX", -1, 1, 50, 2, Q("25.50602 mm")))
sketch1.addConstraint(Sketcher.Constraint("DistanceY", 53, 2, -1, 1, Q("11.587332 mm")))
sketch1.addConstraint(Sketcher.Constraint("DistanceX", -1, 1, 54, 2, Q("21.587971 mm")))
sketch1.addConstraint(Sketcher.Constraint("DistanceY", -1, 1, 57, 2, Q("30.266721 mm")))
sketch1.addConstraint(Sketcher.Constraint("DistanceX", -1, 1, 59, 2, Q("3.761329 mm")))
sketch1.addConstraint(Sketcher.Constraint("DistanceX", 62, 2, -1, 1, Q("3.761329 mm")))
sketch1.addConstraint(Sketcher.Constraint("Distance", 4, Q("2.273656 mm")))
sketch1.addConstraint(Sketcher.Constraint("Distance", 9, Q("2.487182 mm")))
sketch1.addConstraint(Sketcher.Constraint("Distance", 15, Q("9.517784 mm")))
sketch1.addConstraint(Sketcher.Constraint("Distance", 25, Q("6.750345 mm")))
sketch1.addConstraint(Sketcher.Constraint("Distance", 26, Q("9.517784 mm")))
sketch1.addConstraint(Sketcher.Constraint("Distance", 28, Q("9.517784 mm")))
sketch1.addConstraint(Sketcher.Constraint("Distance", 35, Q("0.783207 mm")))
sketch1.addConstraint(Sketcher.Constraint("Distance", 38, Q("5.406654 mm")))
sketch1.addConstraint(Sketcher.Constraint("Distance", 39, Q("9.517784 mm")))
sketch1.addConstraint(Sketcher.Constraint("Distance", 40, Q("3.251045 mm")))
sketch1.addConstraint(Sketcher.Constraint("Distance", 41, Q("0.776017 mm")))
sketch1.addConstraint(Sketcher.Constraint("Distance", 42, Q("4.027062 mm")))
sketch1.addConstraint(Sketcher.Constraint("Distance", 43, Q("4.027062 mm")))
sketch1.addConstraint(Sketcher.Constraint("Distance", 44, Q("3.251045 mm")))
sketch1.addConstraint(Sketcher.Constraint("Distance", 45, Q("0.776017 mm")))
sketch1.addConstraint(Sketcher.Constraint("Distance", 46, Q("4.027062 mm")))
sketch1.addConstraint(Sketcher.Constraint("Distance", 47, Q("4.027062 mm")))
sketch1.addConstraint(Sketcher.Constraint("DistanceX", 5, 3, -1, 1, Q("0.905636 mm")))
sketch1.addConstraint(Sketcher.Constraint("DistanceX", 7, 3, -1, 1, Q("0.087077 mm")))
sketch1.addConstraint(Sketcher.Constraint("DistanceX", 20, 3, -1, 1, Q("28.183103 mm")))
sketch1.addConstraint(Sketcher.Constraint("DistanceX", -1, 1, 33, 3, Q("24.329006 mm")))
sketch1.addConstraint(Sketcher.Constraint("DistanceX", -1, 1, 5, 2, Q("2.677092 mm")))
sketch1.addConstraint(Sketcher.Constraint("DistanceX", 8, 2, -1, 1, Q("0.274455 mm")))
sketch1.addConstraint(Sketcher.Constraint("DistanceX", 21, 2, -1, 1, Q("28.472194 mm")))
sketch1.addConstraint(Sketcher.Constraint("DistanceX", -1, 1, 28, 2, Q("15.374313 mm")))
sketch1.addConstraint(Sketcher.Constraint("DistanceX", -1, 1, 37, 2, Q("24.353843 mm")))
sketch1.addConstraint(Sketcher.Constraint("DistanceX", 40, 2, -1, 1, Q("19.154153 mm")))
sketch1.addConstraint(Sketcher.Constraint("DistanceY", 40, 2, -1, 1, Q("11.058655 mm")))
sketch1.addConstraint(Sketcher.Constraint("DistanceX", 43, 2, -1, 1, Q("23.090298 mm")))
sketch1.addConstraint(Sketcher.Constraint("DistanceX", -1, 1, 52, 2, Q("19.628947 mm")))
sketch1.addConstraint(Sketcher.Constraint("DistanceX", 57, 2, -1, 1, Q("1.880665 mm")))
sketch1.setExpression("Constraints[80]", "Params.sketch1_radius")
sketch1.setExpression("Constraints[81]", "Params.sketch1_radius2")
sketch1.setExpression("Constraints[82]", "Params.sketch1_radius3")
pad1 = body.newObject("PartDesign::Pad", "Pad")
pad1.Profile = sketch1
pad1.setExpression("Length", "Params.pad1_length")
pad1.Reversed = True

doc.recompute()
